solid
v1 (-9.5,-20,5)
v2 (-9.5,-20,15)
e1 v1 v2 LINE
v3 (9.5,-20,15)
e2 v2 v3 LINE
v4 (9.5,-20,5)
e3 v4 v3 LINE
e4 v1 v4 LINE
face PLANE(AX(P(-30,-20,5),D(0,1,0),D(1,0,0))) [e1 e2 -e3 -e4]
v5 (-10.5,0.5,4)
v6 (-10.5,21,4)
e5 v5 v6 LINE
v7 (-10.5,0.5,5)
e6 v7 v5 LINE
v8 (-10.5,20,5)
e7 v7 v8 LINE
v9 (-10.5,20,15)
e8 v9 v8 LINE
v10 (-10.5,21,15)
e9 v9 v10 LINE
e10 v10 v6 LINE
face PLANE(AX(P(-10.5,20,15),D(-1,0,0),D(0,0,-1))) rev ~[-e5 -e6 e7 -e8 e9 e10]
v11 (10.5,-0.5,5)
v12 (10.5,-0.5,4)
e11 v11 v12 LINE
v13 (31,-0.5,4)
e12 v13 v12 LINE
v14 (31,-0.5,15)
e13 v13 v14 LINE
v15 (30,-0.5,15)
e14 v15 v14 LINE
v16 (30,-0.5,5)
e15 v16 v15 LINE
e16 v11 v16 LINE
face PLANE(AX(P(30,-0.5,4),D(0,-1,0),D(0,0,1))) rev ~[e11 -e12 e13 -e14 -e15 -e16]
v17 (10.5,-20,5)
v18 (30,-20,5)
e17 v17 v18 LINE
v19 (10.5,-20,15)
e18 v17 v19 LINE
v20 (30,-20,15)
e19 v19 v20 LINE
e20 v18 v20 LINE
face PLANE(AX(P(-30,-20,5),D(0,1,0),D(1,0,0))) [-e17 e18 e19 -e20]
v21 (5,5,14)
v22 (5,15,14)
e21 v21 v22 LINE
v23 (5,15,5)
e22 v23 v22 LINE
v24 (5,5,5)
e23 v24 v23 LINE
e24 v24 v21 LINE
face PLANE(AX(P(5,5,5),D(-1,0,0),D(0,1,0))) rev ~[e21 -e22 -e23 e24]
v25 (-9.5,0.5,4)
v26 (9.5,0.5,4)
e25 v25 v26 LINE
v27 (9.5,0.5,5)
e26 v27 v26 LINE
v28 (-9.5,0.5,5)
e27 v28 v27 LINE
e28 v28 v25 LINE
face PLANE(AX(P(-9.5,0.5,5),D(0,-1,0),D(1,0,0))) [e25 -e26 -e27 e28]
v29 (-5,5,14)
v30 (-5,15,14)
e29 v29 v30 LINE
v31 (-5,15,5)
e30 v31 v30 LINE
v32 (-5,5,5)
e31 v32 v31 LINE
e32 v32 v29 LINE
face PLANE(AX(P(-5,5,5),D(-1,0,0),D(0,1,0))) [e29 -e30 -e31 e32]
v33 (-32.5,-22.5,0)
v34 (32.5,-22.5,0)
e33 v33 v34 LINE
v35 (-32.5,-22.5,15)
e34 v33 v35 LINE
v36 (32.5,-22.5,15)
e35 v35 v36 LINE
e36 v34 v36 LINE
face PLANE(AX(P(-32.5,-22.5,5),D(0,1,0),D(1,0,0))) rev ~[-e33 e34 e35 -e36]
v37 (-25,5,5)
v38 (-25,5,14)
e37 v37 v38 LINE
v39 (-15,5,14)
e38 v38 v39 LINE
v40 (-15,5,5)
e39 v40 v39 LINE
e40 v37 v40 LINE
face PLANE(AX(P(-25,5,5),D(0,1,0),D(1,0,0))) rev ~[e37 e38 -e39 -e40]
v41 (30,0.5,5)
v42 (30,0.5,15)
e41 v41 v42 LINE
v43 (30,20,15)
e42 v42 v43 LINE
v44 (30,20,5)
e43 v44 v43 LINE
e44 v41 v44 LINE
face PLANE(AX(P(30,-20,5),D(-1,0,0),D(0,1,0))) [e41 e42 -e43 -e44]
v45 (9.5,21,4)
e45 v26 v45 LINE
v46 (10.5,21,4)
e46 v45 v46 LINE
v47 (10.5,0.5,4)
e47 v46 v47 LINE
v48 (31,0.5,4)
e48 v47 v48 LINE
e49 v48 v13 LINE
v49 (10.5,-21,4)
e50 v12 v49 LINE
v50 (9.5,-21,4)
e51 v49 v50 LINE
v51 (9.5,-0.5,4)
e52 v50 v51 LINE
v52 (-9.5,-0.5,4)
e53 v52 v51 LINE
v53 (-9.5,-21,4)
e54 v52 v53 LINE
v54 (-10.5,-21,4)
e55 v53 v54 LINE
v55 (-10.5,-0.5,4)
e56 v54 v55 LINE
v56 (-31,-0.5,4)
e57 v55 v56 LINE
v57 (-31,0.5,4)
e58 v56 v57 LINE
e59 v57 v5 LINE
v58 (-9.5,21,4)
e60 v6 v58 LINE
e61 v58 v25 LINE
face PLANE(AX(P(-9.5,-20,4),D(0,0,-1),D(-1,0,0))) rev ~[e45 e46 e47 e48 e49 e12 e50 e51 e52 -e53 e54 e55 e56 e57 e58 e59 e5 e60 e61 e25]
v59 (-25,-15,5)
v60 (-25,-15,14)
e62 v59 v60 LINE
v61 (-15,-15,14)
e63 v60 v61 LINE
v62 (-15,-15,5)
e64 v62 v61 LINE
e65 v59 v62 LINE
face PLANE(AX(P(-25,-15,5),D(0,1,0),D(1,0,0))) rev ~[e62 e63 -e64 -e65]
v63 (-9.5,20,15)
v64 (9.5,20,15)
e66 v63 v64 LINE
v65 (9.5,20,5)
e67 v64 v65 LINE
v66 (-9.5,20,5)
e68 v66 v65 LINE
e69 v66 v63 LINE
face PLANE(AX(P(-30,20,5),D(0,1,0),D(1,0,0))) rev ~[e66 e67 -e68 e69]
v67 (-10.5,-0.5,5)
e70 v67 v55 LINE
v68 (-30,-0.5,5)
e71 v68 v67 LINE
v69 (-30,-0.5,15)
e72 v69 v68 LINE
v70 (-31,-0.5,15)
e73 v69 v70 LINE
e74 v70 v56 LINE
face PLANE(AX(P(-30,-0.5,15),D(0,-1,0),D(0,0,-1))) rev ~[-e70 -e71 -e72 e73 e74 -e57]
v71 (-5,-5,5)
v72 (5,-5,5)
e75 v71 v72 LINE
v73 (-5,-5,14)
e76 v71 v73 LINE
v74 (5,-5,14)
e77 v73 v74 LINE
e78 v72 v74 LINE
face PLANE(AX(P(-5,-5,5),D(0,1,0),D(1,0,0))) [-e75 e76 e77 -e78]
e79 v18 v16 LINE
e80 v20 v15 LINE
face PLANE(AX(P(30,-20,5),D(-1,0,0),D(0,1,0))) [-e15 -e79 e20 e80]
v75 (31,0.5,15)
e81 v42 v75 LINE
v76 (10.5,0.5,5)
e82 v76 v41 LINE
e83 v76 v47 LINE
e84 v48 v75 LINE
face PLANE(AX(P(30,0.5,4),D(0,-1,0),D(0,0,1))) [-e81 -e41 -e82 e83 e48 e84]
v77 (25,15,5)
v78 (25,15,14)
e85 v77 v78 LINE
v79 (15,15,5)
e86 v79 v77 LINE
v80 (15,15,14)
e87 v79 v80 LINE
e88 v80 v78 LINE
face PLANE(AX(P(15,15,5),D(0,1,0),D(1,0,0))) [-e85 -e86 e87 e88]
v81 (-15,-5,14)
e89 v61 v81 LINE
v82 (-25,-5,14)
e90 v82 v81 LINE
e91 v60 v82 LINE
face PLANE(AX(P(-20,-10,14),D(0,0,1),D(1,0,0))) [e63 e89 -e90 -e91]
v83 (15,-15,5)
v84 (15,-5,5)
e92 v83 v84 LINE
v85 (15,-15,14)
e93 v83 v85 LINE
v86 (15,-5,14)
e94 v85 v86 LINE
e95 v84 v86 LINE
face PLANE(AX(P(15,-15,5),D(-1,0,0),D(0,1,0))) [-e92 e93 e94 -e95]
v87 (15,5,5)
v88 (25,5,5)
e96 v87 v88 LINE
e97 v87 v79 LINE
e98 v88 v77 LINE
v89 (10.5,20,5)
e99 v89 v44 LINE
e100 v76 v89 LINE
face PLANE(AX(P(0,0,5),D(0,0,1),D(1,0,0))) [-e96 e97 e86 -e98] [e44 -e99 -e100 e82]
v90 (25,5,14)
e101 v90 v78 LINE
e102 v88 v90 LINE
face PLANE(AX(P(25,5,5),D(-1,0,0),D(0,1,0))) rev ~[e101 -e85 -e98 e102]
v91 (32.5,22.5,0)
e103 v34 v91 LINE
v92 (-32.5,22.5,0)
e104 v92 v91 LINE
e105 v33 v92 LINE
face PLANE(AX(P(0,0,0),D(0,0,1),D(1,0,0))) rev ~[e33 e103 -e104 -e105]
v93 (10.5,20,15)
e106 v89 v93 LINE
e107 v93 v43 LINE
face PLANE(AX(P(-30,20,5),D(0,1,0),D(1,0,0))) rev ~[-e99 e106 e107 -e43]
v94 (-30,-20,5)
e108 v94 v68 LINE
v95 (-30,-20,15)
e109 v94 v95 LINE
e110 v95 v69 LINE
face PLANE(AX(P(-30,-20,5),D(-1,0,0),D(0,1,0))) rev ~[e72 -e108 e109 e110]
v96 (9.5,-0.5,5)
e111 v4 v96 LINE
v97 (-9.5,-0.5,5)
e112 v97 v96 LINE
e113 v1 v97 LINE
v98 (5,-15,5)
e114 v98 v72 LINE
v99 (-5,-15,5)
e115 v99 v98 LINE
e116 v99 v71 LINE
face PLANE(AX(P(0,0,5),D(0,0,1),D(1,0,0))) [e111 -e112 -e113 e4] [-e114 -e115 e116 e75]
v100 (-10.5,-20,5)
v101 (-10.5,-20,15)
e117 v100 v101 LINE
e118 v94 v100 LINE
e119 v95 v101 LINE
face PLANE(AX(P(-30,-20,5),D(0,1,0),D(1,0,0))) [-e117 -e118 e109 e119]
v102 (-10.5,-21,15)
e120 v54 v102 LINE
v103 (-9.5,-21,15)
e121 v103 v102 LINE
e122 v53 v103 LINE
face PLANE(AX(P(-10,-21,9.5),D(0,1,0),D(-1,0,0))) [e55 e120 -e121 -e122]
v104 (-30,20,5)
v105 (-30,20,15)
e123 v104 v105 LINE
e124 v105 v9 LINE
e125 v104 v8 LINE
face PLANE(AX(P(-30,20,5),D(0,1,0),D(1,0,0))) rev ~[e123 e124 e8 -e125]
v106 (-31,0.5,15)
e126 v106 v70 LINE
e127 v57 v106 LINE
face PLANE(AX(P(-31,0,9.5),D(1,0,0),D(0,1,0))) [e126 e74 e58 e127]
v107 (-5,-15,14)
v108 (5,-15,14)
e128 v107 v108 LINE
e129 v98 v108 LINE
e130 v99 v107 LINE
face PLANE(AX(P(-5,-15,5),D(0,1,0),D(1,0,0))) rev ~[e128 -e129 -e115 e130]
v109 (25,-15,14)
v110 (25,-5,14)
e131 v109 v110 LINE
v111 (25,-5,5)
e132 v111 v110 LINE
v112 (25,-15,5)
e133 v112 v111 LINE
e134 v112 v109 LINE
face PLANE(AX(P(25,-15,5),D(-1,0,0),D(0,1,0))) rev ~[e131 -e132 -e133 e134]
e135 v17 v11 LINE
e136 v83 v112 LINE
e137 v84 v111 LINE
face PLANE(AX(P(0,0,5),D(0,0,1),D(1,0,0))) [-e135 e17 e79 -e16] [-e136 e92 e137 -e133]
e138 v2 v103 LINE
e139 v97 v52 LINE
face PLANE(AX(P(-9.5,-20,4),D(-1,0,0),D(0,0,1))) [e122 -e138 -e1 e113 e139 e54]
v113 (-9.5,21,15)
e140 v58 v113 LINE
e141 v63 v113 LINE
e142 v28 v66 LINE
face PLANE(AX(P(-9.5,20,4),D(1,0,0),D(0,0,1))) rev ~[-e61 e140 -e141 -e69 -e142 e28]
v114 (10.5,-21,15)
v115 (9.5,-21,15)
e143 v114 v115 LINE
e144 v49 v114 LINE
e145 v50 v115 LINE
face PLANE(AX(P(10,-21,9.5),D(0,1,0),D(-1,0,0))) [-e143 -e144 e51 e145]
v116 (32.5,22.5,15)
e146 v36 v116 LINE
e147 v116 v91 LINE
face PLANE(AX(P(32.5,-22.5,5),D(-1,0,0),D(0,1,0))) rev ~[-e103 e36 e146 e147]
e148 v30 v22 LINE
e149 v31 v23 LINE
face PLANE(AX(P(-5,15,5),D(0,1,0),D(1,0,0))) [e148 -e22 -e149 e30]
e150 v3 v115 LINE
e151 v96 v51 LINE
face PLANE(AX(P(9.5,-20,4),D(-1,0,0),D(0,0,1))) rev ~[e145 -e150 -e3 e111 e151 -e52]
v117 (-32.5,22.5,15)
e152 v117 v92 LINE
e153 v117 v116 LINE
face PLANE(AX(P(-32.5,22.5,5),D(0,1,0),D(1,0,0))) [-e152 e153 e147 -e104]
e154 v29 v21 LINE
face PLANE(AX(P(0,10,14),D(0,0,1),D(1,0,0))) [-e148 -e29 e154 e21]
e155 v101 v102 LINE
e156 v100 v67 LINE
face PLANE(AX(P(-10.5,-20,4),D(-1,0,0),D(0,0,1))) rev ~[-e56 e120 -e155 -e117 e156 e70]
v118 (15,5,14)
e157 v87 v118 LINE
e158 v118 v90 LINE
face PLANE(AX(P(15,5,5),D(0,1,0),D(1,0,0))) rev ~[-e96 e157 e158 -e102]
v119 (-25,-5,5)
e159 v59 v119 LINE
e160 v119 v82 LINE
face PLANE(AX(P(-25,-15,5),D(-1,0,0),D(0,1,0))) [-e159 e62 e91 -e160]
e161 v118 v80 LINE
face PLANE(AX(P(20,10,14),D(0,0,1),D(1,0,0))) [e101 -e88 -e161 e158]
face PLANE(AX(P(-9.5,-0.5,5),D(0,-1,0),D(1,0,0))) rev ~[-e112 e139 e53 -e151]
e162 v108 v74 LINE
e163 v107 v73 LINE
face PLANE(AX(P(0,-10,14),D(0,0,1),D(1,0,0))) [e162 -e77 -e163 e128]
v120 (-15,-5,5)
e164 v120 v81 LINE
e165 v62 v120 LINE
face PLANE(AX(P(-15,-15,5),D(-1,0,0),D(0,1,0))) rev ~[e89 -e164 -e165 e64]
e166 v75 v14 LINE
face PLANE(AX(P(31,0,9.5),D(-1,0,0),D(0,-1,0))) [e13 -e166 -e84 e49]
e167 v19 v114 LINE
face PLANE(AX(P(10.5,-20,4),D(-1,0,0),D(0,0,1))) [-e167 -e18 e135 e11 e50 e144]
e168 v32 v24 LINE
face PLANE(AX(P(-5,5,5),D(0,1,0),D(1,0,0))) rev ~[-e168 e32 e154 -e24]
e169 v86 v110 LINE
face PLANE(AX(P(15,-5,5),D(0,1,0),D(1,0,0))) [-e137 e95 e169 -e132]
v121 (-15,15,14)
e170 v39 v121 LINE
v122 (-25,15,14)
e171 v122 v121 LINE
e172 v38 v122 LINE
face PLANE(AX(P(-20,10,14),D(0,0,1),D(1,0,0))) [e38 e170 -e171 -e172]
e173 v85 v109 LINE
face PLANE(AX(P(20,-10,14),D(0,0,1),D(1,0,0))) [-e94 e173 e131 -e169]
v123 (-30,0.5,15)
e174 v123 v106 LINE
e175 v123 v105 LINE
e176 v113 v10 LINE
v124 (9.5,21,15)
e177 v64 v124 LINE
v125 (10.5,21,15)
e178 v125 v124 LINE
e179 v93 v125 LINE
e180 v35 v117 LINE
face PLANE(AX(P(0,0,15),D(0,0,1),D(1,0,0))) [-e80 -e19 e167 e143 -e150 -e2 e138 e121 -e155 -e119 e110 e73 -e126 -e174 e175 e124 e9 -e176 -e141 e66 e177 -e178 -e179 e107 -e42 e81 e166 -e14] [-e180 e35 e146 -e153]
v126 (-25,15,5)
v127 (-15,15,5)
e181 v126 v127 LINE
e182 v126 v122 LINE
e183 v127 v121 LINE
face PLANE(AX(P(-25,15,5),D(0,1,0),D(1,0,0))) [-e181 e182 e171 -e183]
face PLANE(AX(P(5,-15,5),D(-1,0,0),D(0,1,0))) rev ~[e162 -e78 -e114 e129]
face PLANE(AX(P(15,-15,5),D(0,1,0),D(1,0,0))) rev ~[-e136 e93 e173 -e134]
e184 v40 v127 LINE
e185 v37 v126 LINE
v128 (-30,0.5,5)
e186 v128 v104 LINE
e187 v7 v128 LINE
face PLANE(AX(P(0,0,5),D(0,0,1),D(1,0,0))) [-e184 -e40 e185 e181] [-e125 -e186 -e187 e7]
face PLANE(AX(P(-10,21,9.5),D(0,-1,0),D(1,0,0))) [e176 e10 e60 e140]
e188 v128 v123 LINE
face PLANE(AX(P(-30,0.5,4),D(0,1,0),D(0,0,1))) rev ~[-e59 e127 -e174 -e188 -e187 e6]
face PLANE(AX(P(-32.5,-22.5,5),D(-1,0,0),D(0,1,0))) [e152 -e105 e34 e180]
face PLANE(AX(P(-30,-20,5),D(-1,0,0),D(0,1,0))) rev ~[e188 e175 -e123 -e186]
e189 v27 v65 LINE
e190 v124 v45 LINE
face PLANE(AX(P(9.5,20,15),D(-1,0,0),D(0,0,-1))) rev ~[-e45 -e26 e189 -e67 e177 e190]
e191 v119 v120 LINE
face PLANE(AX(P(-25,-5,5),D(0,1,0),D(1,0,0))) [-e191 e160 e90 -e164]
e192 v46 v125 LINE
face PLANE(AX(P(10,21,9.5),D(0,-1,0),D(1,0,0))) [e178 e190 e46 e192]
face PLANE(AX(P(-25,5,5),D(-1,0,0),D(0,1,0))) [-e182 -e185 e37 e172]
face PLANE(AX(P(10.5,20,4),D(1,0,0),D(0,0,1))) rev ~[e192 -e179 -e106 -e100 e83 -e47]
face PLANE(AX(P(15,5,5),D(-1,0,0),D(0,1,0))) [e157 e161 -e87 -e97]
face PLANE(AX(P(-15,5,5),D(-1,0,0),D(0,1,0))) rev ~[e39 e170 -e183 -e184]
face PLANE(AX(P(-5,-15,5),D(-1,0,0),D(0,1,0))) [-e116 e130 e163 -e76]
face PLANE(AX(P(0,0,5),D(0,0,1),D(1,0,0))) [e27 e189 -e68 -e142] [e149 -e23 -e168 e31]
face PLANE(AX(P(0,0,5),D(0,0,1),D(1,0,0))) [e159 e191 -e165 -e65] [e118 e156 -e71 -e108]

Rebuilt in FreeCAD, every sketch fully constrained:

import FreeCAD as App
import Part
import Sketcher
Q = App.Units.Quantity


def add_polygon(sketch, points):
    """Adds a closed chain of lines whose ends are joined by coincident constraints."""
    first, n = sketch.GeometryCount, len(points)
    for a, b in zip(points, points[1:] + points[:1]):
        sketch.addGeometry(Part.LineSegment(App.Vector(*a, 0), App.Vector(*b, 0)), False)
    for i in range(n):
        sketch.addConstraint(Sketcher.Constraint("Coincident", first + i, 2, first + (i + 1) % n, 1))

doc = App.newDocument("Part")
body = doc.addObject("PartDesign::Body", "Body")

sketch1 = body.newObject("Sketcher::SketchObject", "Sketch")
sketch1.AttachmentSupport = (doc.getObject("XY_Plane"), [""])
sketch1.MapMode = "FlatFace"
add_polygon(sketch1, [(-32, 22), (-32, -22), (32, -22), (32, 22)])
sketch1.addConstraint([
    Sketcher.Constraint("Vertical", 0),
    Sketcher.Constraint("Horizontal", 1),
    Sketcher.Constraint("Vertical", 2),
    Sketcher.Constraint("Horizontal", 3),
    Sketcher.Constraint("Symmetric", 0, 2, 2, 2, -1, 1),
    Sketcher.Constraint("DistanceX", 1, 1, 1, 2, Q("65 mm")),
    Sketcher.Constraint("DistanceY", 0, 2, 0, 1, Q("45 mm")),
])
pad1 = body.newObject("PartDesign::Pad", "Pad")
pad1.Profile = sketch1
pad1.Length = 5

sketch2 = body.newObject("Sketcher::SketchObject", "Sketch001")
sketch2.AttachmentSupport = (doc.getObject("XY_Plane"), [""])
sketch2.MapMode = "FlatFace"
sketch2.AttachmentOffset = App.Placement(App.Vector(0, 0, 5), App.Rotation())
add_polygon(sketch2, [(-32, 22), (-32, -22), (32, -22), (32, 22)])
add_polygon(sketch2, [(30, -20), (-30, -20), (-30, 20), (30, 20)])
sketch2.addConstraint([
    Sketcher.Constraint("Vertical", 0),
    Sketcher.Constraint("Horizontal", 1),
    Sketcher.Constraint("Vertical", 2),
    Sketcher.Constraint("Horizontal", 3),
    Sketcher.Constraint("Horizontal", 4),
    Sketcher.Constraint("Vertical", 5),
    Sketcher.Constraint("Horizontal", 6),
    Sketcher.Constraint("Vertical", 7),
    Sketcher.Constraint("Symmetric", 0, 2, 2, 2, -1, 1),
    Sketcher.Constraint("Symmetric", 4, 2, 6, 2, -1, 1),
    Sketcher.Constraint("DistanceX", 1, 1, 1, 2, Q("65 mm")),
    Sketcher.Constraint("DistanceX", 4, 2, 4, 1, Q("60 mm")),
    Sketcher.Constraint("DistanceY", 0, 2, 0, 1, Q("45 mm")),
    Sketcher.Constraint("DistanceY", 5, 1, 5, 2, Q("40 mm")),
])
pad2 = body.newObject("PartDesign::Pad", "Pad001")
pad2.Profile = sketch2
pad2.Length = 10

sketch3 = body.newObject("Sketcher::SketchObject", "Sketch002")
sketch3.AttachmentSupport = (doc.getObject("XY_Plane"), [""])
sketch3.MapMode = "FlatFace"
sketch3.AttachmentOffset = App.Placement(App.Vector(0, 0, 5), App.Rotation())
add_polygon(sketch3, [(-30, 0.5), (-30, -0.5), (-10.5, -0.5), (-10.5, -20), (-9.5, -20), (-9.5, -0.5), (9.5, -0.5), (9.5, -20), (10.5, -20), (10.5, -0.5), (30, -0.5), (30, 0.5), (10.5, 0.5), (10.5, 20), (9.5, 20), (9.5, 0.5), (-9.5, 0.5), (-9.5, 20), (-10.5, 20), (-10.5, 0.5)])
sketch3.addConstraint([
    Sketcher.Constraint("Vertical", 0),
    Sketcher.Constraint("Horizontal", 1),
    Sketcher.Constraint("Vertical", 2),
    Sketcher.Constraint("Horizontal", 3),
    Sketcher.Constraint("Vertical", 4),
    Sketcher.Constraint("Horizontal", 5),
    Sketcher.Constraint("Vertical", 6),
    Sketcher.Constraint("Horizontal", 7),
    Sketcher.Constraint("Vertical", 8),
    Sketcher.Constraint("Horizontal", 9),
    Sketcher.Constraint("Vertical", 10),
    Sketcher.Constraint("Horizontal", 11),
    Sketcher.Constraint("Vertical", 12),
    Sketcher.Constraint("Horizontal", 13),
    Sketcher.Constraint("Vertical", 14),
    Sketcher.Constraint("Horizontal", 15),
    Sketcher.Constraint("Vertical", 16),
    Sketcher.Constraint("Horizontal", 17),
    Sketcher.Constraint("Vertical", 18),
    Sketcher.Constraint("Horizontal", 19),
    Sketcher.Constraint("Symmetric", 0, 2, 10, 2, -1, 1),
    Sketcher.Constraint("Symmetric", 2, 2, 12, 2, -1, 1),
    Sketcher.Constraint("Symmetric", 4, 2, 14, 2, -1, 1),
    Sketcher.Constraint("Symmetric", 6, 2, 16, 2, -1, 1),
    Sketcher.Constraint("Symmetric", 8, 2, 18, 2, -1, 1),
    Sketcher.Constraint("Symmetric", 3, 2, 6, 2, -2),
    Sketcher.Constraint("Symmetric", 1, 2, 8, 2, -2),
    Sketcher.Constraint("Horizontal", 1, 2, 4, 2),
    Sketcher.Constraint("Equal", 17, 0),
    Sketcher.Constraint("Equal", 19, 2),
    Sketcher.Constraint("DistanceX", 3, 1, 3, 2, Q("1 mm")),
    Sketcher.Constraint("DistanceX", 5, 1, 5, 2, Q("19 mm")),
    Sketcher.Constraint("DistanceX", 1, 1, 1, 2, Q("19.5 mm")),
])
pocket1 = body.newObject("PartDesign::Pocket", "Pocket")
pocket1.Profile = sketch3
pocket1.Length = 1

sketch4 = body.newObject("Sketcher::SketchObject", "Sketch003")
sketch4.AttachmentSupport = (doc.getObject("XZ_Plane"), [""])
sketch4.MapMode = "FlatFace"
sketch4.AttachmentOffset = App.Placement(App.Vector(0, 0, -20), App.Rotation())
add_polygon(sketch4, [(-10.5, 4), (-9.5, 4), (-9.5, 15), (-10.5, 15)])
add_polygon(sketch4, [(9.5, 15), (9.5, 4), (10.5, 4), (10.5, 15)])
sketch4.addConstraint([
    Sketcher.Constraint("Horizontal", 0),
    Sketcher.Constraint("Vertical", 1),
    Sketcher.Constraint("Horizontal", 2),
    Sketcher.Constraint("Vertical", 3),
    Sketcher.Constraint("Vertical", 4),
    Sketcher.Constraint("Horizontal", 5),
    Sketcher.Constraint("Vertical", 6),
    Sketcher.Constraint("Horizontal", 7),
    Sketcher.Constraint("Symmetric", 0, 2, 4, 2, -2),
    Sketcher.Constraint("Symmetric", 2, 2, 6, 2, -2),
    Sketcher.Constraint("DistanceX", 0, 1, 0, 2, Q("1 mm")),
    Sketcher.Constraint("DistanceY", 1, 1, 1, 2, Q("11 mm")),
    Sketcher.Constraint("DistanceY", -1, 1, 0, 2, Q("4 mm")),
    Sketcher.Constraint("DistanceX", 0, 2, 4, 2, Q("19 mm")),
])
pocket2 = body.newObject("PartDesign::Pocket", "Pocket001")
pocket2.Profile = sketch4
pocket2.Length = 1

sketch5 = body.newObject("Sketcher::SketchObject", "Sketch004")
sketch5.AttachmentSupport = (doc.getObject("YZ_Plane"), [""])
sketch5.MapMode = "FlatFace"
sketch5.AttachmentOffset = App.Placement(App.Vector(0, 0, -30), App.Rotation())
add_polygon(sketch5, [(-0.5, 4), (0.5, 4), (0.5, 15), (-0.5, 15)])
sketch5.addConstraint([
    Sketcher.Constraint("Horizontal", 0),
    Sketcher.Constraint("Vertical", 1),
    Sketcher.Constraint("Horizontal", 2),
    Sketcher.Constraint("Vertical", 3),
    Sketcher.Constraint("DistanceX", 0, 1, 0, 2, Q("1 mm")),
    Sketcher.Constraint("DistanceY", 1, 1, 1, 2, Q("11 mm")),
    Sketcher.Constraint("DistanceY", -1, 1, 0, 2, Q("4 mm")),
    Sketcher.Constraint("DistanceX", -1, 1, 0, 2, Q("0.5 mm")),
])
pocket3 = body.newObject("PartDesign::Pocket", "Pocket002")
pocket3.Profile = sketch5
pocket3.Length = 1

sketch6 = body.newObject("Sketcher::SketchObject", "Sketch005")
sketch6.AttachmentSupport = (doc.getObject("XZ_Plane"), [""])
sketch6.MapMode = "FlatFace"
sketch6.AttachmentOffset = App.Placement(App.Vector(0, 0, 20), App.Rotation())
add_polygon(sketch6, [(10.5, 15), (10.5, 4), (9.5, 4), (9.5, 15)])
add_polygon(sketch6, [(-9.5, 15), (-9.5, 4), (-10.5, 4), (-10.5, 15)])
sketch6.addConstraint([
    Sketcher.Constraint("Vertical", 0),
    Sketcher.Constraint("Horizontal", 1),
    Sketcher.Constraint("Vertical", 2),
    Sketcher.Constraint("Horizontal", 3),
    Sketcher.Constraint("Vertical", 4),
    Sketcher.Constraint("Horizontal", 5),
    Sketcher.Constraint("Vertical", 6),
    Sketcher.Constraint("Horizontal", 7),
    Sketcher.Constraint("Symmetric", 1, 2, 4, 2, -2),
    Sketcher.Constraint("Symmetric", 3, 2, 6, 2, -2),
    Sketcher.Constraint("DistanceX", 1, 2, 1, 1, Q("1 mm")),
    Sketcher.Constraint("DistanceY", 0, 2, 0, 1, Q("11 mm")),
    Sketcher.Constraint("DistanceY", -1, 1, 0, 2, Q("4 mm")),
    Sketcher.Constraint("DistanceX", 4, 2, 1, 2, Q("19 mm")),
])
pocket4 = body.newObject("PartDesign::Pocket", "Pocket003")
pocket4.Profile = sketch6
pocket4.Length = 1
pocket4.Reversed = True

sketch7 = body.newObject("Sketcher::SketchObject", "Sketch006")
sketch7.AttachmentSupport = (doc.getObject("YZ_Plane"), [""])
sketch7.MapMode = "FlatFace"
sketch7.AttachmentOffset = App.Placement(App.Vector(0, 0, 30), App.Rotation())
add_polygon(sketch7, [(0.5, 15), (0.5, 4), (-0.5, 4), (-0.5, 15)])
sketch7.addConstraint([
    Sketcher.Constraint("Vertical", 0),
    Sketcher.Constraint("Horizontal", 1),
    Sketcher.Constraint("Vertical", 2),
    Sketcher.Constraint("Horizontal", 3),
    Sketcher.Constraint("DistanceX", 1, 2, 1, 1, Q("1 mm")),
    Sketcher.Constraint("DistanceY", 0, 2, 0, 1, Q("11 mm")),
    Sketcher.Constraint("DistanceY", -1, 1, 0, 2, Q("4 mm")),
    Sketcher.Constraint("DistanceX", -1, 1, 0, 2, Q("0.5 mm")),
])
pocket5 = body.newObject("PartDesign::Pocket", "Pocket004")
pocket5.Profile = sketch7
pocket5.Length = 1
pocket5.Reversed = True

sketch8 = body.newObject("Sketcher::SketchObject", "Sketch007")
sketch8.AttachmentSupport = (doc.getObject("XY_Plane"), [""])
sketch8.MapMode = "FlatFace"
sketch8.AttachmentOffset = App.Placement(App.Vector(0, 0, 5), App.Rotation())
add_polygon(sketch8, [(-25, 15), (-25, 5), (-15, 5), (-15, 15)])
add_polygon(sketch8, [(-5, 15), (-5, 5), (5, 5), (5, 15)])
add_polygon(sketch8, [(15, 15), (15, 5), (25, 5), (25, 15)])
add_polygon(sketch8, [(15, -5), (15, -15), (25, -15), (25, -5)])
add_polygon(sketch8, [(-5, -5), (-5, -15), (5, -15), (5, -5)])
add_polygon(sketch8, [(-25, -5), (-25, -15), (-15, -15), (-15, -5)])
sketch8.addConstraint([
    Sketcher.Constraint("Vertical", 0),
    Sketcher.Constraint("Horizontal", 1),
    Sketcher.Constraint("Vertical", 2),
    Sketcher.Constraint("Horizontal", 3),
    Sketcher.Constraint("Vertical", 4),
    Sketcher.Constraint("Horizontal", 5),
    Sketcher.Constraint("Vertical", 6),
    Sketcher.Constraint("Horizontal", 7),
    Sketcher.Constraint("Vertical", 8),
    Sketcher.Constraint("Horizontal", 9),
    Sketcher.Constraint("Vertical", 10),
    Sketcher.Constraint("Horizontal", 11),
    Sketcher.Constraint("Vertical", 12),
    Sketcher.Constraint("Horizontal", 13),
    Sketcher.Constraint("Vertical", 14),
    Sketcher.Constraint("Horizontal", 15),
    Sketcher.Constraint("Vertical", 16),
    Sketcher.Constraint("Horizontal", 17),
    Sketcher.Constraint("Vertical", 18),
    Sketcher.Constraint("Horizontal", 19),
    Sketcher.Constraint("Vertical", 20),
    Sketcher.Constraint("Horizontal", 21),
    Sketcher.Constraint("Vertical", 22),
    Sketcher.Constraint("Horizontal", 23),
    Sketcher.Constraint("Symmetric", 2, 2, 12, 2, -1, 1),
    Sketcher.Constraint("Symmetric", 0, 2, 14, 2, -1, 1),
    Sketcher.Constraint("Symmetric", 6, 2, 16, 2, -1, 1),
    Sketcher.Constraint("Symmetric", 4, 2, 18, 2, -1, 1),
    Sketcher.Constraint("Symmetric", 10, 2, 20, 2, -1, 1),
    Sketcher.Constraint("Symmetric", 8, 2, 22, 2, -1, 1),
    Sketcher.Constraint("Symmetric", 1, 2, 8, 2, -2),
    Sketcher.Constraint("Symmetric", 3, 2, 10, 2, -2),
    Sketcher.Constraint("Horizontal", 1, 2, 4, 2),
    Sketcher.Constraint("Horizontal", 3, 2, 6, 2),
    Sketcher.Constraint("Vertical", 7, 2, 16, 2),
    Sketcher.Constraint("Equal", 3, 5),
    Sketcher.Constraint("Equal", 23, 0),
    Sketcher.Constraint("DistanceX", 1, 1, 1, 2, Q("10 mm")),
    Sketcher.Constraint("DistanceX", 0, 2, -1, 1, Q("25 mm")),
    Sketcher.Constraint("DistanceY", -1, 1, 0, 2, Q("5 mm")),
])
pad3 = body.newObject("PartDesign::Pad", "Pad002")
pad3.Profile = sketch8
pad3.Length = 9

doc.recompute()
